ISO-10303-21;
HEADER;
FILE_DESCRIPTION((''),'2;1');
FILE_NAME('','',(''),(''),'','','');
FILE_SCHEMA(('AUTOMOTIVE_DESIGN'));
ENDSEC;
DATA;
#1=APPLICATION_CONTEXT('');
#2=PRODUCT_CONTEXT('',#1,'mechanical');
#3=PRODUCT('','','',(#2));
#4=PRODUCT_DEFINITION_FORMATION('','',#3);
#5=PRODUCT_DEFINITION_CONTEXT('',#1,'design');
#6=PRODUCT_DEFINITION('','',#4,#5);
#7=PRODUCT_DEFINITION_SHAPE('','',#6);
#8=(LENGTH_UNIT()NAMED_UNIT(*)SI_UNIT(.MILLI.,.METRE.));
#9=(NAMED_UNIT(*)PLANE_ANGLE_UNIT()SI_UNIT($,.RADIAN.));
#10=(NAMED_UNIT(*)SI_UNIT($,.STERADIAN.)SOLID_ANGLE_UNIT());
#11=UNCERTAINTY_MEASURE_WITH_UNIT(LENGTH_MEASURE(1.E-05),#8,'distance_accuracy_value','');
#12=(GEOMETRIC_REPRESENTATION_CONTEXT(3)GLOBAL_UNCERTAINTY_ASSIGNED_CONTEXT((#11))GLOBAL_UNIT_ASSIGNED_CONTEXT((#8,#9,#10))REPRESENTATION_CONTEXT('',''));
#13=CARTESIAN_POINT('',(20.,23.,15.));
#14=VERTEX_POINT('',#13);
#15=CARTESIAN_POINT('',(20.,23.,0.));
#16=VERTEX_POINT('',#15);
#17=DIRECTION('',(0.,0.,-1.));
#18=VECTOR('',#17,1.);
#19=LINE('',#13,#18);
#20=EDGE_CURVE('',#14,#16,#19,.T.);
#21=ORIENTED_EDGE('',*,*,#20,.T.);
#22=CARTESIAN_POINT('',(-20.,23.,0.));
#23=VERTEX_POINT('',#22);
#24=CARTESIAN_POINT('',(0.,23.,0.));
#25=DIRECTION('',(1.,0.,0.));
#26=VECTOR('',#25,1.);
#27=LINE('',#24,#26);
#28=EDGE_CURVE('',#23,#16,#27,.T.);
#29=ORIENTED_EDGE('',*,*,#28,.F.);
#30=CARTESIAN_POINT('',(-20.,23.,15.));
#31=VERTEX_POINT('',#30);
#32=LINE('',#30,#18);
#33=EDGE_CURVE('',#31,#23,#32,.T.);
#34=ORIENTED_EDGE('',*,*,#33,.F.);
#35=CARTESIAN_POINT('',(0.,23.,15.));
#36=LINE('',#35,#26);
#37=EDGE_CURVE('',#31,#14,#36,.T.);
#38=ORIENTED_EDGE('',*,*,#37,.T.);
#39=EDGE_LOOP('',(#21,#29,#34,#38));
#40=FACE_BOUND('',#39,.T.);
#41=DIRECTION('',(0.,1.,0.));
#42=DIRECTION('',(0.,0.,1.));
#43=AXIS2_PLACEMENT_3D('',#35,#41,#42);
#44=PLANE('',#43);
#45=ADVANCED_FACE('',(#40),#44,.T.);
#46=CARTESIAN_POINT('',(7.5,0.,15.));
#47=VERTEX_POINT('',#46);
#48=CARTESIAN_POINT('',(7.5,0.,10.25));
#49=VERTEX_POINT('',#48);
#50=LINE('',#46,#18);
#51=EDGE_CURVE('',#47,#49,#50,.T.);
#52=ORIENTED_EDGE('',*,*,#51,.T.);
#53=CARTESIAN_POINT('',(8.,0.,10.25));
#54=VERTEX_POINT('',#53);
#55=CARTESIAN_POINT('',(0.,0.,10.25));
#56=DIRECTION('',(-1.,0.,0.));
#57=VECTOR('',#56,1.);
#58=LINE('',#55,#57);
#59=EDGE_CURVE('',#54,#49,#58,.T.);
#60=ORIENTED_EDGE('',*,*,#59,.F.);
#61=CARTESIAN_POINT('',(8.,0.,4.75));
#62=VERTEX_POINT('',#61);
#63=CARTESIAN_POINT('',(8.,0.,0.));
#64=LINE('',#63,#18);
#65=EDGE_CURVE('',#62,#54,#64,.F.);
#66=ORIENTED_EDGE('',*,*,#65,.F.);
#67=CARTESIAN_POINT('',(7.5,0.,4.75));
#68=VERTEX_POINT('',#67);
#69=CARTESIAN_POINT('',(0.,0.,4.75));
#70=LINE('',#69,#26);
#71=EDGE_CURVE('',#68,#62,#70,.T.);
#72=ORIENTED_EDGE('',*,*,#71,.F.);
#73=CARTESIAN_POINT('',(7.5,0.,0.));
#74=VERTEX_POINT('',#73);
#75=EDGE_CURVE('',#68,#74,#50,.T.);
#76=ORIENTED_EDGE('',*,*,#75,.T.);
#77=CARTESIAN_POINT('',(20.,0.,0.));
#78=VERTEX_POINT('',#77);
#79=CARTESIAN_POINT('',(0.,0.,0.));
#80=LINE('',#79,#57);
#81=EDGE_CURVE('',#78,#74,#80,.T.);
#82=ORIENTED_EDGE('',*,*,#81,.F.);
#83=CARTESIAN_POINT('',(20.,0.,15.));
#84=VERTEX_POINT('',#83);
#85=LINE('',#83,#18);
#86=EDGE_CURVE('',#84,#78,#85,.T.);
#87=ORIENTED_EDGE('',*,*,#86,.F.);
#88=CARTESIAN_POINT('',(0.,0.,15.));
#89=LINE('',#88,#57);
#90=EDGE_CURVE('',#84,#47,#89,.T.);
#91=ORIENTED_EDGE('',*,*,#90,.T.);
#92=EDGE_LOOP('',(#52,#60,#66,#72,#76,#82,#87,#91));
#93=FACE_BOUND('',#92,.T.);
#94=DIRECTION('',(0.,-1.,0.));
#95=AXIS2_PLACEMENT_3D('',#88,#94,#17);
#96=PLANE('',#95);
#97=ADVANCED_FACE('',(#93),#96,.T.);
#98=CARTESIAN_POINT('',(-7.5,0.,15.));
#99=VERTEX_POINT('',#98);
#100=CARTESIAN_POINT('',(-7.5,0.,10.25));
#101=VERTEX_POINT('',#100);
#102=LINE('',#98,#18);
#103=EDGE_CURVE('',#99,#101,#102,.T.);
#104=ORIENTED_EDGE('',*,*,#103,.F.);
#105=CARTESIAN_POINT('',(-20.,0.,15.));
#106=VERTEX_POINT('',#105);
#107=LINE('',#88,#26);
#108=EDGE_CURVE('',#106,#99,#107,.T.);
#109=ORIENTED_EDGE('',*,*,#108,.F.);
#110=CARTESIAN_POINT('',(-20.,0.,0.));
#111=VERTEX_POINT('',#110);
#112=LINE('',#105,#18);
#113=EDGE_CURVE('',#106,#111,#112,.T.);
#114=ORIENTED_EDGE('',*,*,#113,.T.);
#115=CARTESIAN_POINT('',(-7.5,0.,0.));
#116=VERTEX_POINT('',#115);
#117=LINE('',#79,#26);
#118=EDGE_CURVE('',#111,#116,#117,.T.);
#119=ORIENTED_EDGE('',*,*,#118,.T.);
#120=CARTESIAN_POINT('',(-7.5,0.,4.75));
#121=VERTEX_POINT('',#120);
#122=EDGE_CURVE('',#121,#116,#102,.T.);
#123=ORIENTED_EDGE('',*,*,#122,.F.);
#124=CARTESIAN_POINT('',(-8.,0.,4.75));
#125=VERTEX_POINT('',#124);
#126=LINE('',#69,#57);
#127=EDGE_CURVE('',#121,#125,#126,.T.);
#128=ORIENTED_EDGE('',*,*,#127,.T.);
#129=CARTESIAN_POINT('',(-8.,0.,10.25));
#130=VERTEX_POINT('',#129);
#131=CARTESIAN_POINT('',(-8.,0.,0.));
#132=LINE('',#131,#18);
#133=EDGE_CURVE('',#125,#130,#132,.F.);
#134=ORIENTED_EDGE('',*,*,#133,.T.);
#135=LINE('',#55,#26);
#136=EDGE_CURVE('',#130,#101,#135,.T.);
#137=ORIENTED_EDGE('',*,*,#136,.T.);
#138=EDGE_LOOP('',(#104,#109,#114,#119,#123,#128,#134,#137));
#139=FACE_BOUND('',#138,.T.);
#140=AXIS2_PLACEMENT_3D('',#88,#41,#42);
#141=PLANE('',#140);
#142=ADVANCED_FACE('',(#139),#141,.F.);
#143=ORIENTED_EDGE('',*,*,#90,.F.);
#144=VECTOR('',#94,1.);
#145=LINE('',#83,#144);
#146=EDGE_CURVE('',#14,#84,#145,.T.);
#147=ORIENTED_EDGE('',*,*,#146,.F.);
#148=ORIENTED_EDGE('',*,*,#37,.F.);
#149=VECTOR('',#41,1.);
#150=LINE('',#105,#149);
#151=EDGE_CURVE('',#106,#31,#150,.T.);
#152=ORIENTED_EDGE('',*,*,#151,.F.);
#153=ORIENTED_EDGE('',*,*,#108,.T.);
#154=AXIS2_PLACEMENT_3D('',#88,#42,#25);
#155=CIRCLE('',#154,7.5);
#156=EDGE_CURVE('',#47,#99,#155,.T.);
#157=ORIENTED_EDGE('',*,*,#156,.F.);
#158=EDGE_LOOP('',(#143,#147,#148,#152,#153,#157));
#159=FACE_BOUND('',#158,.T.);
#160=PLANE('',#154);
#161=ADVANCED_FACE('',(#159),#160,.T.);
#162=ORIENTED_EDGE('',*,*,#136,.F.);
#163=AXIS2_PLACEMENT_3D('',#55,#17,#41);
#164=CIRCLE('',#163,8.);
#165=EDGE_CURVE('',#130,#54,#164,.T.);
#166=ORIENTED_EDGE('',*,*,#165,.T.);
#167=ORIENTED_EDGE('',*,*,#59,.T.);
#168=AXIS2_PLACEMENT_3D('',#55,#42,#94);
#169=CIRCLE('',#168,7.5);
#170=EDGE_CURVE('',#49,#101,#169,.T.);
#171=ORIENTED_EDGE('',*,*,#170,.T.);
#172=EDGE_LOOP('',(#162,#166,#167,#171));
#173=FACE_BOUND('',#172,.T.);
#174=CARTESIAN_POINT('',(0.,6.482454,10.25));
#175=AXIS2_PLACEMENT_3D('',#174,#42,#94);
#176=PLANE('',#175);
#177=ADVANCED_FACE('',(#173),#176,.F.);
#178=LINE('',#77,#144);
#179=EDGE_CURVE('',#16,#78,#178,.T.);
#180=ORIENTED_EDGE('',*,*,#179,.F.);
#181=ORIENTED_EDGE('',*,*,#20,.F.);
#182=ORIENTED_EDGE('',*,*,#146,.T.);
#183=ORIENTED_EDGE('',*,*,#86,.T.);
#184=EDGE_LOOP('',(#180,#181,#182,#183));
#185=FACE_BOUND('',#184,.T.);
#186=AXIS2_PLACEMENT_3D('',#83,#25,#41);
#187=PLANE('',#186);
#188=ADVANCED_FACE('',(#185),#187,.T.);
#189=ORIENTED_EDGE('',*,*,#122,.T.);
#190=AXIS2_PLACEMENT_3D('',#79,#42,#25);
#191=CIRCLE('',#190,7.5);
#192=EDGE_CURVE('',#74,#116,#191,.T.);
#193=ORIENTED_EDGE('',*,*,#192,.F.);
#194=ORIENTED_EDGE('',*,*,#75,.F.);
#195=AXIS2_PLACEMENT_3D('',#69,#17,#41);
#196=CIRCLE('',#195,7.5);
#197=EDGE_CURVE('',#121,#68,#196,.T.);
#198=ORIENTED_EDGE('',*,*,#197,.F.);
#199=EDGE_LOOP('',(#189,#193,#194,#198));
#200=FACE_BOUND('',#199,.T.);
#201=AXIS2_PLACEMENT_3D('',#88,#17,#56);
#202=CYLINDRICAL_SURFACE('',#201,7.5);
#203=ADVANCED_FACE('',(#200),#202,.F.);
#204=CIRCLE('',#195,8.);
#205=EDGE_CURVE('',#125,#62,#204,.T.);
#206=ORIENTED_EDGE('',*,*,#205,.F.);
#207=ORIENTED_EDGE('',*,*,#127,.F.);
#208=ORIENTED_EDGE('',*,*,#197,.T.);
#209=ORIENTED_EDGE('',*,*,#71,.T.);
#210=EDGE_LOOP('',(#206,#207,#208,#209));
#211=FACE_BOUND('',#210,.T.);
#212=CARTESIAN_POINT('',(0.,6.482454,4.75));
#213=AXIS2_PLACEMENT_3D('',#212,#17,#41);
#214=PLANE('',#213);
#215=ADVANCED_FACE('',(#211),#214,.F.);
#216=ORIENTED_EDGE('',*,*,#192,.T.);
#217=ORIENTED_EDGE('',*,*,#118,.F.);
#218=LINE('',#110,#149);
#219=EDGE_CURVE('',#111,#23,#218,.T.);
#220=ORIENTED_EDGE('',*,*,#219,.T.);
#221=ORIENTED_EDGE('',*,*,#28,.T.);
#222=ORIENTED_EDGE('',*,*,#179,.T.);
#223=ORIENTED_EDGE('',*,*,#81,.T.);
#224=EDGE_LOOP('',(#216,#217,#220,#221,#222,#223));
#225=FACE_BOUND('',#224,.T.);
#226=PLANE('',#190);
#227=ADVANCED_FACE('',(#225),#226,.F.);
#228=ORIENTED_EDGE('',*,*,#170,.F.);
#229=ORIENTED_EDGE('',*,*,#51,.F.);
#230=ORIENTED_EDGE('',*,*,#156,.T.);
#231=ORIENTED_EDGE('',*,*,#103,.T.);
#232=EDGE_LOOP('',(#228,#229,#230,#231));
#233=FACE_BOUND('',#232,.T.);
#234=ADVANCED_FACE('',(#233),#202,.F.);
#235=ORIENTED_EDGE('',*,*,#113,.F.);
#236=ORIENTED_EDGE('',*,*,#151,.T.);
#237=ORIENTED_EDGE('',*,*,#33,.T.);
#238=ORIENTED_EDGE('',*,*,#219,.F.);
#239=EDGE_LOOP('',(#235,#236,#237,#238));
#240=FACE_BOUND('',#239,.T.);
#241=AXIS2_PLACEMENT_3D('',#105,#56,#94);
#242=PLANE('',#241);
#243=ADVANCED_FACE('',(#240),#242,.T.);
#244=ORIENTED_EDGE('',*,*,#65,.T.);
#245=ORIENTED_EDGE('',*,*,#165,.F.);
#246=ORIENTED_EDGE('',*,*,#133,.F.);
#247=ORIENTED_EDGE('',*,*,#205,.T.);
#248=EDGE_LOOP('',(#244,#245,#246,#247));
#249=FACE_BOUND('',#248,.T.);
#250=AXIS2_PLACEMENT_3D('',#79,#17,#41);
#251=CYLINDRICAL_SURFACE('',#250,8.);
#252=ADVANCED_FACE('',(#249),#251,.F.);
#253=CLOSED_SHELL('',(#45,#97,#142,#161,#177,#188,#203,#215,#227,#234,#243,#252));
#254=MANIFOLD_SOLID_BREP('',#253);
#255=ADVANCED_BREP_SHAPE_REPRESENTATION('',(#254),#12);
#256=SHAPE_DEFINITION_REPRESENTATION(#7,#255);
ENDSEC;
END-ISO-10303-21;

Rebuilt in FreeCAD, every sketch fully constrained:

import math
import FreeCAD as App
import Part
import Sketcher

V = App.Vector
Q = App.Units.Quantity

doc = App.newDocument("Part")
body = doc.addObject("PartDesign::Body", "Body")

# Sketch on XY plane
sketch1 = body.newObject("Sketcher::SketchObject", "Sketch")
sketch1.AttachmentSupport = (doc.getObject("XY_Plane"), [""])
sketch1.MapMode = "FlatFace"
sketch1.addGeometry([
    Part.LineSegment(V(-20, 23, 0), V(-20, 0, 0)),  # 0
    Part.LineSegment(V(-20, 0, 0), V(-8, 0, 0)),  # 1
    Part.ArcOfCircle(Part.Circle(V(0, 0, 0), V(0, 0, 1), 8), math.radians(0), math.radians(180)),  # 2
    Part.LineSegment(V(8, 0, 0), V(20, 0, 0)),  # 3
    Part.LineSegment(V(20, 0, 0), V(20, 23, 0)),  # 4
    Part.LineSegment(V(20, 23, 0), V(-20, 23, 0)),  # 5
], False)
sketch1.addConstraint([
    Sketcher.Constraint("Coincident", 0, 2, 1, 1),
    Sketcher.Constraint("Coincident", 1, 2, 2, 2),
    Sketcher.Constraint("Coincident", 2, 1, 3, 1),
    Sketcher.Constraint("Coincident", 3, 2, 4, 1),
    Sketcher.Constraint("Coincident", 4, 2, 5, 1),
    Sketcher.Constraint("Coincident", 5, 2, 0, 1),
    Sketcher.Constraint("Vertical", 0),
    Sketcher.Constraint("Horizontal", 1),
    Sketcher.Constraint("Horizontal", 3),
    Sketcher.Constraint("Vertical", 4),
    Sketcher.Constraint("Horizontal", 5),
    Sketcher.Constraint("Coincident", 2, 3, -1, 1),
    Sketcher.Constraint("Symmetric", 0, 2, 3, 2, -1, 1),
    Sketcher.Constraint("PointOnObject", 0, 2, -1),
    Sketcher.Constraint("Radius", 2, Q("7.5 mm")),
    Sketcher.Constraint("DistanceX", 5, 2, 5, 1, Q("40 mm")),
    Sketcher.Constraint("DistanceY", 0, 2, 0, 1, Q("23 mm")),
])
pad1 = body.newObject("PartDesign::Pad", "Pad")
pad1.Profile = sketch1
pad1.Length = 15

# Sketch on YZ plane
sketch2 = body.newObject("Sketcher::SketchObject", "Sketch001")
sketch2.AttachmentSupport = (doc.getObject("YZ_Plane"), [""])
sketch2.MapMode = "FlatFace"
sketch2.addGeometry([
    Part.LineSegment(V(8, 10.2, 0), V(6.5, 10.2, 0)),
    Part.LineSegment(V(6.5, 10.2, 0), V(6.5, 4.8, 0)),
    Part.LineSegment(V(6.5, 4.8, 0), V(8, 4.8, 0)),
    Part.LineSegment(V(8, 4.8, 0), V(8, 10.2, 0)),
], False)
sketch2.addConstraint([
    Sketcher.Constraint("Coincident", 0, 2, 1, 1),
    Sketcher.Constraint("Coincident", 1, 2, 2, 1),
    Sketcher.Constraint("Coincident", 2, 2, 3, 1),
    Sketcher.Constraint("Coincident", 3, 2, 0, 1),
    Sketcher.Constraint("Horizontal", 0),
    Sketcher.Constraint("Vertical", 1),
    Sketcher.Constraint("Horizontal", 2),
    Sketcher.Constraint("Vertical", 3),
    Sketcher.Constraint("DistanceY", 1, 2, 1, 1, Q("5.5 mm")),
    Sketcher.Constraint("DistanceX", -1, 1, 2, 2, Q("8 mm")),
    Sketcher.Constraint("DistanceY", -1, 1, 0, 2, Q("10.25 mm")),
    Sketcher.Constraint("DistanceX", 0, 2, 0, 1, Q("1.517546 mm")),
])
groove = body.newObject("PartDesign::Groove", "Groove")
groove.Profile = sketch2
groove.ReferenceAxis = (sketch2, ["V_Axis"])
groove.Angle = 360

doc.recompute()
